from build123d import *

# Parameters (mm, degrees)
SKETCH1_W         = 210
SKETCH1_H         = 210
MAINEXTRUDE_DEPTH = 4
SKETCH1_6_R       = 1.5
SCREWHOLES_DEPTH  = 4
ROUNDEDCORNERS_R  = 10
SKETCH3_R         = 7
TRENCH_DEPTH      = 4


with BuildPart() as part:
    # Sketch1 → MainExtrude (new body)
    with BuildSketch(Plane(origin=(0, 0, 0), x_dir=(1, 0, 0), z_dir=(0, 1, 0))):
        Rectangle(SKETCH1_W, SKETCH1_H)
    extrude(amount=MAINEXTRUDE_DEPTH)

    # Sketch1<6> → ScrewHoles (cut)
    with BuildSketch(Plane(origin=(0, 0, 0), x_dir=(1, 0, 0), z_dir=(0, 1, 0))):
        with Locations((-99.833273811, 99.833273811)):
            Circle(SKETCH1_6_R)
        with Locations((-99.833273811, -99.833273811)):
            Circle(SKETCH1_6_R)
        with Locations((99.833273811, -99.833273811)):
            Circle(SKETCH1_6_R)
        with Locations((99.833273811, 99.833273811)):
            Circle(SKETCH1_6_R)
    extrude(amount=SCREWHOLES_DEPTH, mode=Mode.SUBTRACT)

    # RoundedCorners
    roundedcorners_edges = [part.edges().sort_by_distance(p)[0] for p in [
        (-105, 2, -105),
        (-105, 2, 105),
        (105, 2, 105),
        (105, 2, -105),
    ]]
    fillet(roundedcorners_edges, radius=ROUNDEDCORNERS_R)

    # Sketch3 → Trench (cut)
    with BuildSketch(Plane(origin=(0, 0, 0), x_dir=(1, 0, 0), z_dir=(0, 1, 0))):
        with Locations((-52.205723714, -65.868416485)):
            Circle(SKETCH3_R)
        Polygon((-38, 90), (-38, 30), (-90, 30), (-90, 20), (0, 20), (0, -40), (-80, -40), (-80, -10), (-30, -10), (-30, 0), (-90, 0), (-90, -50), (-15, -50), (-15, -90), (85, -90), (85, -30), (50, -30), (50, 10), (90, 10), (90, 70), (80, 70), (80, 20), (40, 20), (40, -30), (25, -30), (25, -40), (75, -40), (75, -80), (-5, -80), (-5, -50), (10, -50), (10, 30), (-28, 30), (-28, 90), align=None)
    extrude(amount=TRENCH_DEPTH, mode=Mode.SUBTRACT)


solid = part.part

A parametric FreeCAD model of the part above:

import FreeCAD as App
import Part
import Sketcher
from FreeCAD import Vector
Q = App.Units.Quantity


def edges_at(feature, points):
    """Names of the edges that pass closest to the given points."""
    edges = feature.Shape.Edges
    near = lambda p: min(range(len(edges)), key=lambda i: edges[i].distToShape(Part.Vertex(*p))[0])
    return sorted({f"Edge{near(p) + 1}" for p in points})

doc = App.newDocument("Part")
body = doc.addObject("PartDesign::Body", "Body")

# Sketch on XZ plane
sketch1 = body.newObject("Sketcher::SketchObject", "Sketch")
sketch1.AttachmentSupport = (doc.getObject("XZ_Plane"), [""])
sketch1.MapMode = "FlatFace"
sketch1.addGeometry(Part.LineSegment(Vector(-105, -105, 0), Vector(-105, 105, 0)), False)
sketch1.addGeometry(Part.LineSegment(Vector(-105, 105, 0), Vector(105, 105, 0)), False)
sketch1.addGeometry(Part.LineSegment(Vector(105, 105, 0), Vector(105, -105, 0)), False)
sketch1.addGeometry(Part.LineSegment(Vector(105, -105, 0), Vector(-105, -105, 0)), False)
sketch1.addConstraint(Sketcher.Constraint("Coincident", 0, 2, 1, 1))
sketch1.addConstraint(Sketcher.Constraint("Coincident", 1, 2, 2, 1))
sketch1.addConstraint(Sketcher.Constraint("Coincident", 2, 2, 3, 1))
sketch1.addConstraint(Sketcher.Constraint("Coincident", 3, 2, 0, 1))
sketch1.addConstraint(Sketcher.Constraint("Vertical", 0))
sketch1.addConstraint(Sketcher.Constraint("Horizontal", 1))
sketch1.addConstraint(Sketcher.Constraint("Vertical", 2))
sketch1.addConstraint(Sketcher.Constraint("Horizontal", 3))
sketch1.addConstraint(Sketcher.Constraint("Symmetric", 0, 2, 2, 2, -1, 1))
sketch1.addConstraint(Sketcher.Constraint("Equal", 3, 0))
sketch1.addConstraint(Sketcher.Constraint("DistanceX", 1, 1, 1, 2, Q("210 mm")))
pad1 = body.newObject("PartDesign::Pad", "Pad")
pad1.Profile = sketch1
pad1.Length = 4
pad1.Reversed = True

# Sketch on XZ plane
sketch2 = body.newObject("Sketcher::SketchObject", "Sketch001")
sketch2.AttachmentSupport = (doc.getObject("XZ_Plane"), [""])
sketch2.MapMode = "FlatFace"
sketch2.addGeometry(Part.Circle(Vector(-99.8, -99.8, 0), Vector(0, 0, 1), 1.5), False)
sketch2.addGeometry(Part.Circle(Vector(-99.8, 99.8, 0), Vector(0, 0, 1), 1.5), False)
sketch2.addGeometry(Part.Circle(Vector(99.8, 99.8, 0), Vector(0, 0, 1), 1.5), False)
sketch2.addGeometry(Part.Circle(Vector(99.8, -99.8, 0), Vector(0, 0, 1), 1.5), False)
sketch2.addConstraint(Sketcher.Constraint("Equal", 0, 1))
sketch2.addConstraint(Sketcher.Constraint("Equal", 1, 2))
sketch2.addConstraint(Sketcher.Constraint("Equal", 2, 3))
sketch2.addConstraint(Sketcher.Constraint("Symmetric", 0, 3, 2, 3, -1, 1))
sketch2.addConstraint(Sketcher.Constraint("Symmetric", 1, 3, 3, 3, -1, 1))
sketch2.addConstraint(Sketcher.Constraint("Symmetric", 1, 3, 2, 3, -2))
sketch2.addConstraint(Sketcher.Constraint("Diameter", 0, Q("3 mm")))
sketch2.addConstraint(Sketcher.Constraint("DistanceX", 0, 3, -1, 1, Q("99.833274 mm")))
sketch2.addConstraint(Sketcher.Constraint("DistanceY", 0, 3, -1, 1, Q("99.833274 mm")))
pocket1 = body.newObject("PartDesign::Pocket", "Pocket")
pocket1.Profile = sketch2
pocket1.Length = 4
doc.recompute()

fillet = body.newObject("PartDesign::Fillet", "Fillet")
fillet.Base = (pocket1, edges_at(pocket1, [
    (-105, 2, -105),
    (-105, 2, 105),
    (105, 2, 105),
    (105, 2, -105),
]))
fillet.Radius = 10

# Sketch on XZ plane
sketch3 = body.newObject("Sketcher::SketchObject", "Sketch002")
sketch3.AttachmentSupport = (doc.getObject("XZ_Plane"), [""])
sketch3.MapMode = "FlatFace"
sketch3.addGeometry(Part.Circle(Vector(-52, 66, 0), Vector(0, 0, 1), 7), False)
sketch3.addGeometry(Part.LineSegment(Vector(-38, -90, 0), Vector(-38, -30, 0)), False)
sketch3.addGeometry(Part.LineSegment(Vector(-38, -30, 0), Vector(-90, -30, 0)), False)
sketch3.addGeometry(Part.LineSegment(Vector(-90, -30, 0), Vector(-90, -20, 0)), False)
sketch3.addGeometry(Part.LineSegment(Vector(-90, -20, 0), Vector(0, -20, 0)), False)
sketch3.addGeometry(Part.LineSegment(Vector(0, -20, 0), Vector(0, 40, 0)), False)
sketch3.addGeometry(Part.LineSegment(Vector(0, 40, 0), Vector(-80, 40, 0)), False)
sketch3.addGeometry(Part.LineSegment(Vector(-80, 40, 0), Vector(-80, 10, 0)), False)
sketch3.addGeometry(Part.LineSegment(Vector(-80, 10, 0), Vector(-30, 10, 0)), False)
sketch3.addGeometry(Part.LineSegment(Vector(-30, 10, 0), Vector(-30, 0, 0)), False)
sketch3.addGeometry(Part.LineSegment(Vector(-30, 0, 0), Vector(-90, 0, 0)), False)
sketch3.addGeometry(Part.LineSegment(Vector(-90, 0, 0), Vector(-90, 50, 0)), False)
sketch3.addGeometry(Part.LineSegment(Vector(-90, 50, 0), Vector(-15, 50, 0)), False)
sketch3.addGeometry(Part.LineSegment(Vector(-15, 50, 0), Vector(-15, 90, 0)), False)
sketch3.addGeometry(Part.LineSegment(Vector(-15, 90, 0), Vector(85, 90, 0)), False)
sketch3.addGeometry(Part.LineSegment(Vector(85, 90, 0), Vector(85, 30, 0)), False)
sketch3.addGeometry(Part.LineSegment(Vector(85, 30, 0), Vector(50, 30, 0)), False)
sketch3.addGeometry(Part.LineSegment(Vector(50, 30, 0), Vector(50, -10, 0)), False)
sketch3.addGeometry(Part.LineSegment(Vector(50, -10, 0), Vector(90, -10, 0)), False)
sketch3.addGeometry(Part.LineSegment(Vector(90, -10, 0), Vector(90, -70, 0)), False)
sketch3.addGeometry(Part.LineSegment(Vector(90, -70, 0), Vector(80, -70, 0)), False)
sketch3.addGeometry(Part.LineSegment(Vector(80, -70, 0), Vector(80, -20, 0)), False)
sketch3.addGeometry(Part.LineSegment(Vector(80, -20, 0), Vector(40, -20, 0)), False)
sketch3.addGeometry(Part.LineSegment(Vector(40, -20, 0), Vector(40, 30, 0)), False)
sketch3.addGeometry(Part.LineSegment(Vector(40, 30, 0), Vector(25, 30, 0)), False)
sketch3.addGeometry(Part.LineSegment(Vector(25, 30, 0), Vector(25, 40, 0)), False)
sketch3.addGeometry(Part.LineSegment(Vector(25, 40, 0), Vector(75, 40, 0)), False)
sketch3.addGeometry(Part.LineSegment(Vector(75, 40, 0), Vector(75, 80, 0)), False)
sketch3.addGeometry(Part.LineSegment(Vector(75, 80, 0), Vector(-5, 80, 0)), False)
sketch3.addGeometry(Part.LineSegment(Vector(-5, 80, 0), Vector(-5, 50, 0)), False)
sketch3.addGeometry(Part.LineSegment(Vector(-5, 50, 0), Vector(10, 50, 0)), False)
sketch3.addGeometry(Part.LineSegment(Vector(10, 50, 0), Vector(10, -30, 0)), False)
sketch3.addGeometry(Part.LineSegment(Vector(10, -30, 0), Vector(-28, -30, 0)), False)
sketch3.addGeometry(Part.LineSegment(Vector(-28, -30, 0), Vector(-28, -90, 0)), False)
sketch3.addGeometry(Part.LineSegment(Vector(-28, -90, 0), Vector(-38, -90, 0)), False)
sketch3.addConstraint(Sketcher.Constraint("Coincident", 1, 2, 2, 1))
sketch3.addConstraint(Sketcher.Constraint("Coincident", 2, 2, 3, 1))
sketch3.addConstraint(Sketcher.Constraint("Coincident", 3, 2, 4, 1))
sketch3.addConstraint(Sketcher.Constraint("Coincident", 4, 2, 5, 1))
sketch3.addConstraint(Sketcher.Constraint("Coincident", 5, 2, 6, 1))
sketch3.addConstraint(Sketcher.Constraint("Coincident", 6, 2, 7, 1))
sketch3.addConstraint(Sketcher.Constraint("Coincident", 7, 2, 8, 1))
sketch3.addConstraint(Sketcher.Constraint("Coincident", 8, 2, 9, 1))
sketch3.addConstraint(Sketcher.Constraint("Coincident", 9, 2, 10, 1))
sketch3.addConstraint(Sketcher.Constraint("Coincident", 10, 2, 11, 1))
sketch3.addConstraint(Sketcher.Constraint("Coincident", 11, 2, 12, 1))
sketch3.addConstraint(Sketcher.Constraint("Coincident", 12, 2, 13, 1))
sketch3.addConstraint(Sketcher.Constraint("Coincident", 13, 2, 14, 1))
sketch3.addConstraint(Sketcher.Constraint("Coincident", 14, 2, 15, 1))
sketch3.addConstraint(Sketcher.Constraint("Coincident", 15, 2, 16, 1))
sketch3.addConstraint(Sketcher.Constraint("Coincident", 16, 2, 17, 1))
sketch3.addConstraint(Sketcher.Constraint("Coincident", 17, 2, 18, 1))
sketch3.addConstraint(Sketcher.Constraint("Coincident", 18, 2, 19, 1))
sketch3.addConstraint(Sketcher.Constraint("Coincident", 19, 2, 20, 1))
sketch3.addConstraint(Sketcher.Constraint("Coincident", 20, 2, 21, 1))
sketch3.addConstraint(Sketcher.Constraint("Coincident", 21, 2, 22, 1))
sketch3.addConstraint(Sketcher.Constraint("Coincident", 22, 2, 23, 1))
sketch3.addConstraint(Sketcher.Constraint("Coincident", 23, 2, 24, 1))
sketch3.addConstraint(Sketcher.Constraint("Coincident", 24, 2, 25, 1))
sketch3.addConstraint(Sketcher.Constraint("Coincident", 25, 2, 26, 1))
sketch3.addConstraint(Sketcher.Constraint("Coincident", 26, 2, 27, 1))
sketch3.addConstraint(Sketcher.Constraint("Coincident", 27, 2, 28, 1))
sketch3.addConstraint(Sketcher.Constraint("Coincident", 28, 2, 29, 1))
sketch3.addConstraint(Sketcher.Constraint("Coincident", 29, 2, 30, 1))
sketch3.addConstraint(Sketcher.Constraint("Coincident", 30, 2, 31, 1))
sketch3.addConstraint(Sketcher.Constraint("Coincident", 31, 2, 32, 1))
sketch3.addConstraint(Sketcher.Constraint("Coincident", 32, 2, 33, 1))
sketch3.addConstraint(Sketcher.Constraint("Coincident", 33, 2, 34, 1))
sketch3.addConstraint(Sketcher.Constraint("Coincident", 34, 2, 1, 1))
sketch3.addConstraint(Sketcher.Constraint("Vertical", 1))
sketch3.addConstraint(Sketcher.Constraint("Horizontal", 2))
sketch3.addConstraint(Sketcher.Constraint("Vertical", 3))
sketch3.addConstraint(Sketcher.Constraint("Horizontal", 4))
sketch3.addConstraint(Sketcher.Constraint("Vertical", 5))
sketch3.addConstraint(Sketcher.Constraint("Horizontal", 6))
sketch3.addConstraint(Sketcher.Constraint("Vertical", 7))
sketch3.addConstraint(Sketcher.Constraint("Horizontal", 8))
sketch3.addConstraint(Sketcher.Constraint("Vertical", 9))
sketch3.addConstraint(Sketcher.Constraint("Horizontal", 10))
sketch3.addConstraint(Sketcher.Constraint("Vertical", 11))
sketch3.addConstraint(Sketcher.Constraint("Horizontal", 12))
sketch3.addConstraint(Sketcher.Constraint("Vertical", 13))
sketch3.addConstraint(Sketcher.Constraint("Horizontal", 14))
sketch3.addConstraint(Sketcher.Constraint("Vertical", 15))
sketch3.addConstraint(Sketcher.Constraint("Horizontal", 16))
sketch3.addConstraint(Sketcher.Constraint("Vertical", 17))
sketch3.addConstraint(Sketcher.Constraint("Horizontal", 18))
sketch3.addConstraint(Sketcher.Constraint("Vertical", 19))
sketch3.addConstraint(Sketcher.Constraint("Horizontal", 20))
sketch3.addConstraint(Sketcher.Constraint("Vertical", 21))
sketch3.addConstraint(Sketcher.Constraint("Horizontal", 22))
sketch3.addConstraint(Sketcher.Constraint("Vertical", 23))
sketch3.addConstraint(Sketcher.Constraint("Horizontal", 24))
sketch3.addConstraint(Sketcher.Constraint("Vertical", 25))
sketch3.addConstraint(Sketcher.Constraint("Horizontal", 26))
sketch3.addConstraint(Sketcher.Constraint("Vertical", 27))
sketch3.addConstraint(Sketcher.Constraint("Horizontal", 28))
sketch3.addConstraint(Sketcher.Constraint("Vertical", 29))
sketch3.addConstraint(Sketcher.Constraint("Horizontal", 30))
sketch3.addConstraint(Sketcher.Constraint("Vertical", 31))
sketch3.addConstraint(Sketcher.Constraint("Horizontal", 32))
sketch3.addConstraint(Sketcher.Constraint("Vertical", 33))
sketch3.addConstraint(Sketcher.Constraint("Horizontal", 34))
sketch3.addConstraint(Sketcher.Constraint("PointOnObject", 4, 2, -2))
sketch3.addConstraint(Sketcher.Constraint("PointOnObject", 9, 2, -1))
sketch3.addConstraint(Sketcher.Constraint("Horizontal", 4, 2, 21, 2))
sketch3.addConstraint(Sketcher.Constraint("Horizontal", 16, 2, 23, 2))
sketch3.addConstraint(Sketcher.Constraint("Horizontal", 6, 2, 25, 2))
sketch3.addConstraint(Sketcher.Constraint("Horizontal", 12, 2, 29, 2))
sketch3.addConstraint(Sketcher.Constraint("Horizontal", 2, 2, 31, 2))
sketch3.addConstraint(Sketcher.Constraint("Vertical", 3, 2, 10, 2))
sketch3.addConstraint(Sketcher.Constraint("Equal", 18, 22))
sketch3.addConstraint(Sketcher.Constraint("Equal", 8, 26))
sketch3.addConstraint(Sketcher.Constraint("Equal", 6, 28))
sketch3.addConstraint(Sketcher.Constraint("Equal", 24, 30))
sketch3.addConstraint(Sketcher.Constraint("Equal", 20, 34))
sketch3.addConstraint(Sketcher.Constraint("Equal", 10, 1))
sketch3.addConstraint(Sketcher.Constraint("Equal", 34, 3))
sketch3.addConstraint(Sketcher.Constraint("Equal", 1, 5))
sketch3.addConstraint(Sketcher.Constraint("Equal", 3, 9))
sketch3.addConstraint(Sketcher.Constraint("Equal", 26, 11))
sketch3.addConstraint(Sketcher.Constraint("Equal", 22, 13))
sketch3.addConstraint(Sketcher.Constraint("Equal", 5, 15))
sketch3.addConstraint(Sketcher.Constraint("Equal", 13, 17))
sketch3.addConstraint(Sketcher.Constraint("Equal", 15, 19))
sketch3.addConstraint(Sketcher.Constraint("Equal", 11, 21))
sketch3.addConstraint(Sketcher.Constraint("Equal", 21, 23))
sketch3.addConstraint(Sketcher.Constraint("Equal", 9, 25))
sketch3.addConstraint(Sketcher.Constraint("Equal", 17, 27))
sketch3.addConstraint(Sketcher.Constraint("Equal", 28, 31))
sketch3.addConstraint(Sketcher.Constraint("Diameter", 0, Q("14 mm")))
sketch3.addConstraint(Sketcher.Constraint("DistanceX", 2, 2, 2, 1, Q("52 mm")))
sketch3.addConstraint(Sketcher.Constraint("DistanceX", 4, 1, 4, 2, Q("90 mm")))
sketch3.addConstraint(Sketcher.Constraint("DistanceX", 6, 2, 6, 1, Q("80 mm")))
sketch3.addConstraint(Sketcher.Constraint("DistanceX", 12, 1, 12, 2, Q("75 mm")))
sketch3.addConstraint(Sketcher.Constraint("DistanceX", 14, 1, 14, 2, Q("100 mm")))
sketch3.addConstraint(Sketcher.Constraint("DistanceX", 16, 2, 16, 1, Q("35 mm")))
sketch3.addConstraint(Sketcher.Constraint("DistanceX", 24, 2, 24, 1, Q("15 mm")))
sketch3.addConstraint(Sketcher.Constraint("DistanceX", 0, 3, -1, 1, Q("52.205724 mm")))
sketch3.addConstraint(Sketcher.Constraint("DistanceY", -1, 1, 0, 3, Q("65.868416 mm")))
pocket2 = body.newObject("PartDesign::Pocket", "Pocket001")
pocket2.Profile = sketch3
pocket2.Length = 4

doc.recompute()
